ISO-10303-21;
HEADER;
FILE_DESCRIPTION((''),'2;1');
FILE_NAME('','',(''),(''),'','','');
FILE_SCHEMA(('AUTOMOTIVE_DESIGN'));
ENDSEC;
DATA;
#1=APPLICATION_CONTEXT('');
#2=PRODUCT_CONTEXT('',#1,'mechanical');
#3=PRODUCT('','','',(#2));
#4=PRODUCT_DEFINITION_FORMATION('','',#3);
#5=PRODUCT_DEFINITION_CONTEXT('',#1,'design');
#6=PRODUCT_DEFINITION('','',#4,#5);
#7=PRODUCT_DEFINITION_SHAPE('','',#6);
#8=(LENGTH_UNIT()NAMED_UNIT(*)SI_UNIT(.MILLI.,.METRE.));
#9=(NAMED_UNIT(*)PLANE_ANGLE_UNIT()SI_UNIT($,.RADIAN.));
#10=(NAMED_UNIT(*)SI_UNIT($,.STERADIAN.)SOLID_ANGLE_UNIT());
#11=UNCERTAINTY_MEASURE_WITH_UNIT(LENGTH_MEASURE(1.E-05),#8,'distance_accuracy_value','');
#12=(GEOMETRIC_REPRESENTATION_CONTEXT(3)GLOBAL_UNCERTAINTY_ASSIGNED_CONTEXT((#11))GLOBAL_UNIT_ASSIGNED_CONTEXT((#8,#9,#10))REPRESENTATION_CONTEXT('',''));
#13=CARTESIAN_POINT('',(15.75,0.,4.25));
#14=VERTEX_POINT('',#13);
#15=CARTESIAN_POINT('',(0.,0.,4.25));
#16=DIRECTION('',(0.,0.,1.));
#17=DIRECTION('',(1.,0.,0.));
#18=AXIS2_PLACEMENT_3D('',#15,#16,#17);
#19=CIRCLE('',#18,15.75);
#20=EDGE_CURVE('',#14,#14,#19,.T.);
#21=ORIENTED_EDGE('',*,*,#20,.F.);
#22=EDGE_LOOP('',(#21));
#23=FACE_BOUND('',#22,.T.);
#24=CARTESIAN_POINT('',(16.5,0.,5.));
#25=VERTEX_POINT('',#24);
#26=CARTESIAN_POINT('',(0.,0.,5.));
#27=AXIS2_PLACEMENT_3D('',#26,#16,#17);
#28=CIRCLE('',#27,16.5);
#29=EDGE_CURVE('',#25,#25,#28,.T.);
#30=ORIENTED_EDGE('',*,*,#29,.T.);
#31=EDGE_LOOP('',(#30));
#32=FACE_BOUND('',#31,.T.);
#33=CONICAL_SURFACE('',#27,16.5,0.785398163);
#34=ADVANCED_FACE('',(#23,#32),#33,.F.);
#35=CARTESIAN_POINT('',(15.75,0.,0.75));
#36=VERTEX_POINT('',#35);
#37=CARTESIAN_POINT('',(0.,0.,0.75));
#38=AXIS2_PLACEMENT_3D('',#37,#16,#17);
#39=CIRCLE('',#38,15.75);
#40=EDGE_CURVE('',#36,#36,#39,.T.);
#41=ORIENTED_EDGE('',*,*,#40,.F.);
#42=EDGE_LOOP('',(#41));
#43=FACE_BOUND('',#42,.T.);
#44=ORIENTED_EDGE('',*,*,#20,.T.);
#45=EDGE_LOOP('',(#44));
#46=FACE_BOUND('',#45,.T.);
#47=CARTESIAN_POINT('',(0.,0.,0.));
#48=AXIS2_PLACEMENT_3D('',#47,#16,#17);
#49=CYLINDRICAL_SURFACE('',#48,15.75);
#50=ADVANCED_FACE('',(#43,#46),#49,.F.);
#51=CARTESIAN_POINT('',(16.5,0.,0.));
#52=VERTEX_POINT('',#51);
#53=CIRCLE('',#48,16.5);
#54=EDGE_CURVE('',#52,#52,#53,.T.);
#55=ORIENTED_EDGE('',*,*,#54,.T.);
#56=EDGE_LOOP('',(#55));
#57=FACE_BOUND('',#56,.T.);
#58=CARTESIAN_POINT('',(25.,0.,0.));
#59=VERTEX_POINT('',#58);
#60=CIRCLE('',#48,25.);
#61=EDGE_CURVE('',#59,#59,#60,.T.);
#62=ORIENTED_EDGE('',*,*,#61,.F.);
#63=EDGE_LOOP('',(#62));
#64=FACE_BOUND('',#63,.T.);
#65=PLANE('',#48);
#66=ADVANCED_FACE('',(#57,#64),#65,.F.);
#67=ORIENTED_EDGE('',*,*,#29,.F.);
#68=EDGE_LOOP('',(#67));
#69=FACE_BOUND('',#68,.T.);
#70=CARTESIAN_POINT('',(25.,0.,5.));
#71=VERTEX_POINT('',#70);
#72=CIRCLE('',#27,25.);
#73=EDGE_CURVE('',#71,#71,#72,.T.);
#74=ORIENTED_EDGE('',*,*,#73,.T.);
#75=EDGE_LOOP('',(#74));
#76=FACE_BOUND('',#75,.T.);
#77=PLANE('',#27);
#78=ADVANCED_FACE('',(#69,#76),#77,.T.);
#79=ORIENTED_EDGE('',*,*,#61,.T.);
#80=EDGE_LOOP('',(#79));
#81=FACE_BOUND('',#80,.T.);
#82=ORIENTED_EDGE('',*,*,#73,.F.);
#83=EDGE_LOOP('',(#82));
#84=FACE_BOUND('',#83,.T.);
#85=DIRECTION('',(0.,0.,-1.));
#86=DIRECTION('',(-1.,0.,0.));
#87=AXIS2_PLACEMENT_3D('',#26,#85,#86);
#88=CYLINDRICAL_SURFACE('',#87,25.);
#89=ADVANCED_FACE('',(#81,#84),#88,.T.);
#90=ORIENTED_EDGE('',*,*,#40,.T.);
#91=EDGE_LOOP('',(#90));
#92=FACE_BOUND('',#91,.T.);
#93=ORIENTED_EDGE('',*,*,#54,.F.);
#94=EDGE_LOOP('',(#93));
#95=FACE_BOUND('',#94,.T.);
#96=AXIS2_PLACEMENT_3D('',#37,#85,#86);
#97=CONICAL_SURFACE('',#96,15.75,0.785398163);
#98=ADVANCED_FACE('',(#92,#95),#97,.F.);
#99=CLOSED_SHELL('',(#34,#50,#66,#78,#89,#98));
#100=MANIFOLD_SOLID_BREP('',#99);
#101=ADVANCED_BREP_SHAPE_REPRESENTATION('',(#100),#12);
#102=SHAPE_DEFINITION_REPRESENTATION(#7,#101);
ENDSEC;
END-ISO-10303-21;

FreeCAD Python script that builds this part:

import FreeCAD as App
import Part
import Sketcher
from FreeCAD import Vector
Q = App.Units.Quantity

doc = App.newDocument("Part")
params = doc.addObject("Spreadsheet::Sheet", "Params")
for row, (alias, value) in enumerate([
    ("sketch1_diameter", "50 mm"),
    ("pad1_length", "5 mm"),
    ("sketch2_diameter", "31.5 mm"),
    ("sketch3_width", "0.75 mm"),
    ("groove_angle", "360 deg"),
], start=1):
    params.set(f"A{row}", alias)
    params.set(f"B{row}", "=" + value)
    params.setAlias(f"B{row}", alias)

body = doc.addObject("PartDesign::Body", "Body")

# Sketch on XY plane
sketch1 = body.newObject("Sketcher::SketchObject", "Sketch")
sketch1.AttachmentSupport = (doc.getObject("XY_Plane"), [""])
sketch1.MapMode = "FlatFace"
sketch1.addGeometry(Part.Circle(Vector(0, 0, 0), Vector(0, 0, 1), 25), False)
sketch1.addConstraint([
    Sketcher.Constraint("Coincident", 0, 3, -1, 1),
    Sketcher.Constraint("Diameter", 0, Q("50 mm")),
])
sketch1.setExpression("Constraints[1]", "Params.sketch1_diameter")
pad1 = body.newObject("PartDesign::Pad", "Pad")
pad1.Profile = sketch1
pad1.setExpression("Length", "Params.pad1_length")

# Sketch on XY plane
sketch2 = body.newObject("Sketcher::SketchObject", "Sketch001")
sketch2.AttachmentSupport = (doc.getObject("XY_Plane"), [""])
sketch2.MapMode = "FlatFace"
sketch2.AttachmentOffset = App.Placement(Vector(0, 0, 5), App.Rotation())
sketch2.addGeometry(Part.Circle(Vector(0, 0, 0), Vector(0, 0, 1), 16), False)
sketch2.addConstraint([
    Sketcher.Constraint("Coincident", 0, 3, -1, 1),
    Sketcher.Constraint("Diameter", 0, Q("31.5 mm")),
])
sketch2.setExpression("Constraints[1]", "Params.sketch2_diameter")
pocket1 = body.newObject("PartDesign::Pocket", "Pocket")
pocket1.Profile = sketch2
pocket1.Type = "ThroughAll"

# Sketch on XZ plane
sketch3 = body.newObject("Sketcher::SketchObject", "Sketch002")
sketch3.AttachmentSupport = (doc.getObject("XZ_Plane"), [""])
sketch3.MapMode = "FlatFace"
sketch3.addGeometry([
    Part.LineSegment(Vector(15.8, 5, 0), Vector(16.5, 5, 0)),  # 0
    Part.LineSegment(Vector(16.5, 5, 0), Vector(15.8, 4.2, 0)),  # 1
    Part.LineSegment(Vector(15.8, 4.2, 0), Vector(15.8, 5, 0)),  # 2
    Part.LineSegment(Vector(16.5, 0, 0), Vector(15.8, 0, 0)),  # 3
    Part.LineSegment(Vector(15.8, 0, 0), Vector(15.8, 0.8, 0)),  # 4
    Part.LineSegment(Vector(15.8, 0.8, 0), Vector(16.5, 0, 0)),  # 5
], False)
sketch3.addConstraint([
    Sketcher.Constraint("Coincident", 0, 2, 1, 1),
    Sketcher.Constraint("Coincident", 1, 2, 2, 1),
    Sketcher.Constraint("Coincident", 2, 2, 0, 1),
    Sketcher.Constraint("Coincident", 3, 2, 4, 1),
    Sketcher.Constraint("Coincident", 4, 2, 5, 1),
    Sketcher.Constraint("Coincident", 5, 2, 3, 1),
    Sketcher.Constraint("Horizontal", 0),
    Sketcher.Constraint("Vertical", 2),
    Sketcher.Constraint("Horizontal", 3),
    Sketcher.Constraint("Vertical", 4),
    Sketcher.Constraint("PointOnObject", 3, 2, -1),
    Sketcher.Constraint("Perpendicular", 1, 5),
    Sketcher.Constraint("Vertical", 2, 2, 3, 2),
    Sketcher.Constraint("Vertical", 0, 2, 5, 2),
    Sketcher.Constraint("Equal", 3, 2),
    Sketcher.Constraint("DistanceY", -1, 1, 0, 2, Q("5 mm")),
    Sketcher.Constraint("DistanceX", 0, 1, 0, 2, Q("0.75 mm")),
    Sketcher.Constraint("DistanceX", -1, 1, 0, 2, Q("16.5 mm")),
])
sketch3.setExpression("Constraints[16]", "Params.sketch3_width")
groove = body.newObject("PartDesign::Groove", "Groove")
groove.Profile = sketch3
groove.ReferenceAxis = (sketch3, ["V_Axis"])
groove.setExpression("Angle", "Params.groove_angle")

doc.recompute()
